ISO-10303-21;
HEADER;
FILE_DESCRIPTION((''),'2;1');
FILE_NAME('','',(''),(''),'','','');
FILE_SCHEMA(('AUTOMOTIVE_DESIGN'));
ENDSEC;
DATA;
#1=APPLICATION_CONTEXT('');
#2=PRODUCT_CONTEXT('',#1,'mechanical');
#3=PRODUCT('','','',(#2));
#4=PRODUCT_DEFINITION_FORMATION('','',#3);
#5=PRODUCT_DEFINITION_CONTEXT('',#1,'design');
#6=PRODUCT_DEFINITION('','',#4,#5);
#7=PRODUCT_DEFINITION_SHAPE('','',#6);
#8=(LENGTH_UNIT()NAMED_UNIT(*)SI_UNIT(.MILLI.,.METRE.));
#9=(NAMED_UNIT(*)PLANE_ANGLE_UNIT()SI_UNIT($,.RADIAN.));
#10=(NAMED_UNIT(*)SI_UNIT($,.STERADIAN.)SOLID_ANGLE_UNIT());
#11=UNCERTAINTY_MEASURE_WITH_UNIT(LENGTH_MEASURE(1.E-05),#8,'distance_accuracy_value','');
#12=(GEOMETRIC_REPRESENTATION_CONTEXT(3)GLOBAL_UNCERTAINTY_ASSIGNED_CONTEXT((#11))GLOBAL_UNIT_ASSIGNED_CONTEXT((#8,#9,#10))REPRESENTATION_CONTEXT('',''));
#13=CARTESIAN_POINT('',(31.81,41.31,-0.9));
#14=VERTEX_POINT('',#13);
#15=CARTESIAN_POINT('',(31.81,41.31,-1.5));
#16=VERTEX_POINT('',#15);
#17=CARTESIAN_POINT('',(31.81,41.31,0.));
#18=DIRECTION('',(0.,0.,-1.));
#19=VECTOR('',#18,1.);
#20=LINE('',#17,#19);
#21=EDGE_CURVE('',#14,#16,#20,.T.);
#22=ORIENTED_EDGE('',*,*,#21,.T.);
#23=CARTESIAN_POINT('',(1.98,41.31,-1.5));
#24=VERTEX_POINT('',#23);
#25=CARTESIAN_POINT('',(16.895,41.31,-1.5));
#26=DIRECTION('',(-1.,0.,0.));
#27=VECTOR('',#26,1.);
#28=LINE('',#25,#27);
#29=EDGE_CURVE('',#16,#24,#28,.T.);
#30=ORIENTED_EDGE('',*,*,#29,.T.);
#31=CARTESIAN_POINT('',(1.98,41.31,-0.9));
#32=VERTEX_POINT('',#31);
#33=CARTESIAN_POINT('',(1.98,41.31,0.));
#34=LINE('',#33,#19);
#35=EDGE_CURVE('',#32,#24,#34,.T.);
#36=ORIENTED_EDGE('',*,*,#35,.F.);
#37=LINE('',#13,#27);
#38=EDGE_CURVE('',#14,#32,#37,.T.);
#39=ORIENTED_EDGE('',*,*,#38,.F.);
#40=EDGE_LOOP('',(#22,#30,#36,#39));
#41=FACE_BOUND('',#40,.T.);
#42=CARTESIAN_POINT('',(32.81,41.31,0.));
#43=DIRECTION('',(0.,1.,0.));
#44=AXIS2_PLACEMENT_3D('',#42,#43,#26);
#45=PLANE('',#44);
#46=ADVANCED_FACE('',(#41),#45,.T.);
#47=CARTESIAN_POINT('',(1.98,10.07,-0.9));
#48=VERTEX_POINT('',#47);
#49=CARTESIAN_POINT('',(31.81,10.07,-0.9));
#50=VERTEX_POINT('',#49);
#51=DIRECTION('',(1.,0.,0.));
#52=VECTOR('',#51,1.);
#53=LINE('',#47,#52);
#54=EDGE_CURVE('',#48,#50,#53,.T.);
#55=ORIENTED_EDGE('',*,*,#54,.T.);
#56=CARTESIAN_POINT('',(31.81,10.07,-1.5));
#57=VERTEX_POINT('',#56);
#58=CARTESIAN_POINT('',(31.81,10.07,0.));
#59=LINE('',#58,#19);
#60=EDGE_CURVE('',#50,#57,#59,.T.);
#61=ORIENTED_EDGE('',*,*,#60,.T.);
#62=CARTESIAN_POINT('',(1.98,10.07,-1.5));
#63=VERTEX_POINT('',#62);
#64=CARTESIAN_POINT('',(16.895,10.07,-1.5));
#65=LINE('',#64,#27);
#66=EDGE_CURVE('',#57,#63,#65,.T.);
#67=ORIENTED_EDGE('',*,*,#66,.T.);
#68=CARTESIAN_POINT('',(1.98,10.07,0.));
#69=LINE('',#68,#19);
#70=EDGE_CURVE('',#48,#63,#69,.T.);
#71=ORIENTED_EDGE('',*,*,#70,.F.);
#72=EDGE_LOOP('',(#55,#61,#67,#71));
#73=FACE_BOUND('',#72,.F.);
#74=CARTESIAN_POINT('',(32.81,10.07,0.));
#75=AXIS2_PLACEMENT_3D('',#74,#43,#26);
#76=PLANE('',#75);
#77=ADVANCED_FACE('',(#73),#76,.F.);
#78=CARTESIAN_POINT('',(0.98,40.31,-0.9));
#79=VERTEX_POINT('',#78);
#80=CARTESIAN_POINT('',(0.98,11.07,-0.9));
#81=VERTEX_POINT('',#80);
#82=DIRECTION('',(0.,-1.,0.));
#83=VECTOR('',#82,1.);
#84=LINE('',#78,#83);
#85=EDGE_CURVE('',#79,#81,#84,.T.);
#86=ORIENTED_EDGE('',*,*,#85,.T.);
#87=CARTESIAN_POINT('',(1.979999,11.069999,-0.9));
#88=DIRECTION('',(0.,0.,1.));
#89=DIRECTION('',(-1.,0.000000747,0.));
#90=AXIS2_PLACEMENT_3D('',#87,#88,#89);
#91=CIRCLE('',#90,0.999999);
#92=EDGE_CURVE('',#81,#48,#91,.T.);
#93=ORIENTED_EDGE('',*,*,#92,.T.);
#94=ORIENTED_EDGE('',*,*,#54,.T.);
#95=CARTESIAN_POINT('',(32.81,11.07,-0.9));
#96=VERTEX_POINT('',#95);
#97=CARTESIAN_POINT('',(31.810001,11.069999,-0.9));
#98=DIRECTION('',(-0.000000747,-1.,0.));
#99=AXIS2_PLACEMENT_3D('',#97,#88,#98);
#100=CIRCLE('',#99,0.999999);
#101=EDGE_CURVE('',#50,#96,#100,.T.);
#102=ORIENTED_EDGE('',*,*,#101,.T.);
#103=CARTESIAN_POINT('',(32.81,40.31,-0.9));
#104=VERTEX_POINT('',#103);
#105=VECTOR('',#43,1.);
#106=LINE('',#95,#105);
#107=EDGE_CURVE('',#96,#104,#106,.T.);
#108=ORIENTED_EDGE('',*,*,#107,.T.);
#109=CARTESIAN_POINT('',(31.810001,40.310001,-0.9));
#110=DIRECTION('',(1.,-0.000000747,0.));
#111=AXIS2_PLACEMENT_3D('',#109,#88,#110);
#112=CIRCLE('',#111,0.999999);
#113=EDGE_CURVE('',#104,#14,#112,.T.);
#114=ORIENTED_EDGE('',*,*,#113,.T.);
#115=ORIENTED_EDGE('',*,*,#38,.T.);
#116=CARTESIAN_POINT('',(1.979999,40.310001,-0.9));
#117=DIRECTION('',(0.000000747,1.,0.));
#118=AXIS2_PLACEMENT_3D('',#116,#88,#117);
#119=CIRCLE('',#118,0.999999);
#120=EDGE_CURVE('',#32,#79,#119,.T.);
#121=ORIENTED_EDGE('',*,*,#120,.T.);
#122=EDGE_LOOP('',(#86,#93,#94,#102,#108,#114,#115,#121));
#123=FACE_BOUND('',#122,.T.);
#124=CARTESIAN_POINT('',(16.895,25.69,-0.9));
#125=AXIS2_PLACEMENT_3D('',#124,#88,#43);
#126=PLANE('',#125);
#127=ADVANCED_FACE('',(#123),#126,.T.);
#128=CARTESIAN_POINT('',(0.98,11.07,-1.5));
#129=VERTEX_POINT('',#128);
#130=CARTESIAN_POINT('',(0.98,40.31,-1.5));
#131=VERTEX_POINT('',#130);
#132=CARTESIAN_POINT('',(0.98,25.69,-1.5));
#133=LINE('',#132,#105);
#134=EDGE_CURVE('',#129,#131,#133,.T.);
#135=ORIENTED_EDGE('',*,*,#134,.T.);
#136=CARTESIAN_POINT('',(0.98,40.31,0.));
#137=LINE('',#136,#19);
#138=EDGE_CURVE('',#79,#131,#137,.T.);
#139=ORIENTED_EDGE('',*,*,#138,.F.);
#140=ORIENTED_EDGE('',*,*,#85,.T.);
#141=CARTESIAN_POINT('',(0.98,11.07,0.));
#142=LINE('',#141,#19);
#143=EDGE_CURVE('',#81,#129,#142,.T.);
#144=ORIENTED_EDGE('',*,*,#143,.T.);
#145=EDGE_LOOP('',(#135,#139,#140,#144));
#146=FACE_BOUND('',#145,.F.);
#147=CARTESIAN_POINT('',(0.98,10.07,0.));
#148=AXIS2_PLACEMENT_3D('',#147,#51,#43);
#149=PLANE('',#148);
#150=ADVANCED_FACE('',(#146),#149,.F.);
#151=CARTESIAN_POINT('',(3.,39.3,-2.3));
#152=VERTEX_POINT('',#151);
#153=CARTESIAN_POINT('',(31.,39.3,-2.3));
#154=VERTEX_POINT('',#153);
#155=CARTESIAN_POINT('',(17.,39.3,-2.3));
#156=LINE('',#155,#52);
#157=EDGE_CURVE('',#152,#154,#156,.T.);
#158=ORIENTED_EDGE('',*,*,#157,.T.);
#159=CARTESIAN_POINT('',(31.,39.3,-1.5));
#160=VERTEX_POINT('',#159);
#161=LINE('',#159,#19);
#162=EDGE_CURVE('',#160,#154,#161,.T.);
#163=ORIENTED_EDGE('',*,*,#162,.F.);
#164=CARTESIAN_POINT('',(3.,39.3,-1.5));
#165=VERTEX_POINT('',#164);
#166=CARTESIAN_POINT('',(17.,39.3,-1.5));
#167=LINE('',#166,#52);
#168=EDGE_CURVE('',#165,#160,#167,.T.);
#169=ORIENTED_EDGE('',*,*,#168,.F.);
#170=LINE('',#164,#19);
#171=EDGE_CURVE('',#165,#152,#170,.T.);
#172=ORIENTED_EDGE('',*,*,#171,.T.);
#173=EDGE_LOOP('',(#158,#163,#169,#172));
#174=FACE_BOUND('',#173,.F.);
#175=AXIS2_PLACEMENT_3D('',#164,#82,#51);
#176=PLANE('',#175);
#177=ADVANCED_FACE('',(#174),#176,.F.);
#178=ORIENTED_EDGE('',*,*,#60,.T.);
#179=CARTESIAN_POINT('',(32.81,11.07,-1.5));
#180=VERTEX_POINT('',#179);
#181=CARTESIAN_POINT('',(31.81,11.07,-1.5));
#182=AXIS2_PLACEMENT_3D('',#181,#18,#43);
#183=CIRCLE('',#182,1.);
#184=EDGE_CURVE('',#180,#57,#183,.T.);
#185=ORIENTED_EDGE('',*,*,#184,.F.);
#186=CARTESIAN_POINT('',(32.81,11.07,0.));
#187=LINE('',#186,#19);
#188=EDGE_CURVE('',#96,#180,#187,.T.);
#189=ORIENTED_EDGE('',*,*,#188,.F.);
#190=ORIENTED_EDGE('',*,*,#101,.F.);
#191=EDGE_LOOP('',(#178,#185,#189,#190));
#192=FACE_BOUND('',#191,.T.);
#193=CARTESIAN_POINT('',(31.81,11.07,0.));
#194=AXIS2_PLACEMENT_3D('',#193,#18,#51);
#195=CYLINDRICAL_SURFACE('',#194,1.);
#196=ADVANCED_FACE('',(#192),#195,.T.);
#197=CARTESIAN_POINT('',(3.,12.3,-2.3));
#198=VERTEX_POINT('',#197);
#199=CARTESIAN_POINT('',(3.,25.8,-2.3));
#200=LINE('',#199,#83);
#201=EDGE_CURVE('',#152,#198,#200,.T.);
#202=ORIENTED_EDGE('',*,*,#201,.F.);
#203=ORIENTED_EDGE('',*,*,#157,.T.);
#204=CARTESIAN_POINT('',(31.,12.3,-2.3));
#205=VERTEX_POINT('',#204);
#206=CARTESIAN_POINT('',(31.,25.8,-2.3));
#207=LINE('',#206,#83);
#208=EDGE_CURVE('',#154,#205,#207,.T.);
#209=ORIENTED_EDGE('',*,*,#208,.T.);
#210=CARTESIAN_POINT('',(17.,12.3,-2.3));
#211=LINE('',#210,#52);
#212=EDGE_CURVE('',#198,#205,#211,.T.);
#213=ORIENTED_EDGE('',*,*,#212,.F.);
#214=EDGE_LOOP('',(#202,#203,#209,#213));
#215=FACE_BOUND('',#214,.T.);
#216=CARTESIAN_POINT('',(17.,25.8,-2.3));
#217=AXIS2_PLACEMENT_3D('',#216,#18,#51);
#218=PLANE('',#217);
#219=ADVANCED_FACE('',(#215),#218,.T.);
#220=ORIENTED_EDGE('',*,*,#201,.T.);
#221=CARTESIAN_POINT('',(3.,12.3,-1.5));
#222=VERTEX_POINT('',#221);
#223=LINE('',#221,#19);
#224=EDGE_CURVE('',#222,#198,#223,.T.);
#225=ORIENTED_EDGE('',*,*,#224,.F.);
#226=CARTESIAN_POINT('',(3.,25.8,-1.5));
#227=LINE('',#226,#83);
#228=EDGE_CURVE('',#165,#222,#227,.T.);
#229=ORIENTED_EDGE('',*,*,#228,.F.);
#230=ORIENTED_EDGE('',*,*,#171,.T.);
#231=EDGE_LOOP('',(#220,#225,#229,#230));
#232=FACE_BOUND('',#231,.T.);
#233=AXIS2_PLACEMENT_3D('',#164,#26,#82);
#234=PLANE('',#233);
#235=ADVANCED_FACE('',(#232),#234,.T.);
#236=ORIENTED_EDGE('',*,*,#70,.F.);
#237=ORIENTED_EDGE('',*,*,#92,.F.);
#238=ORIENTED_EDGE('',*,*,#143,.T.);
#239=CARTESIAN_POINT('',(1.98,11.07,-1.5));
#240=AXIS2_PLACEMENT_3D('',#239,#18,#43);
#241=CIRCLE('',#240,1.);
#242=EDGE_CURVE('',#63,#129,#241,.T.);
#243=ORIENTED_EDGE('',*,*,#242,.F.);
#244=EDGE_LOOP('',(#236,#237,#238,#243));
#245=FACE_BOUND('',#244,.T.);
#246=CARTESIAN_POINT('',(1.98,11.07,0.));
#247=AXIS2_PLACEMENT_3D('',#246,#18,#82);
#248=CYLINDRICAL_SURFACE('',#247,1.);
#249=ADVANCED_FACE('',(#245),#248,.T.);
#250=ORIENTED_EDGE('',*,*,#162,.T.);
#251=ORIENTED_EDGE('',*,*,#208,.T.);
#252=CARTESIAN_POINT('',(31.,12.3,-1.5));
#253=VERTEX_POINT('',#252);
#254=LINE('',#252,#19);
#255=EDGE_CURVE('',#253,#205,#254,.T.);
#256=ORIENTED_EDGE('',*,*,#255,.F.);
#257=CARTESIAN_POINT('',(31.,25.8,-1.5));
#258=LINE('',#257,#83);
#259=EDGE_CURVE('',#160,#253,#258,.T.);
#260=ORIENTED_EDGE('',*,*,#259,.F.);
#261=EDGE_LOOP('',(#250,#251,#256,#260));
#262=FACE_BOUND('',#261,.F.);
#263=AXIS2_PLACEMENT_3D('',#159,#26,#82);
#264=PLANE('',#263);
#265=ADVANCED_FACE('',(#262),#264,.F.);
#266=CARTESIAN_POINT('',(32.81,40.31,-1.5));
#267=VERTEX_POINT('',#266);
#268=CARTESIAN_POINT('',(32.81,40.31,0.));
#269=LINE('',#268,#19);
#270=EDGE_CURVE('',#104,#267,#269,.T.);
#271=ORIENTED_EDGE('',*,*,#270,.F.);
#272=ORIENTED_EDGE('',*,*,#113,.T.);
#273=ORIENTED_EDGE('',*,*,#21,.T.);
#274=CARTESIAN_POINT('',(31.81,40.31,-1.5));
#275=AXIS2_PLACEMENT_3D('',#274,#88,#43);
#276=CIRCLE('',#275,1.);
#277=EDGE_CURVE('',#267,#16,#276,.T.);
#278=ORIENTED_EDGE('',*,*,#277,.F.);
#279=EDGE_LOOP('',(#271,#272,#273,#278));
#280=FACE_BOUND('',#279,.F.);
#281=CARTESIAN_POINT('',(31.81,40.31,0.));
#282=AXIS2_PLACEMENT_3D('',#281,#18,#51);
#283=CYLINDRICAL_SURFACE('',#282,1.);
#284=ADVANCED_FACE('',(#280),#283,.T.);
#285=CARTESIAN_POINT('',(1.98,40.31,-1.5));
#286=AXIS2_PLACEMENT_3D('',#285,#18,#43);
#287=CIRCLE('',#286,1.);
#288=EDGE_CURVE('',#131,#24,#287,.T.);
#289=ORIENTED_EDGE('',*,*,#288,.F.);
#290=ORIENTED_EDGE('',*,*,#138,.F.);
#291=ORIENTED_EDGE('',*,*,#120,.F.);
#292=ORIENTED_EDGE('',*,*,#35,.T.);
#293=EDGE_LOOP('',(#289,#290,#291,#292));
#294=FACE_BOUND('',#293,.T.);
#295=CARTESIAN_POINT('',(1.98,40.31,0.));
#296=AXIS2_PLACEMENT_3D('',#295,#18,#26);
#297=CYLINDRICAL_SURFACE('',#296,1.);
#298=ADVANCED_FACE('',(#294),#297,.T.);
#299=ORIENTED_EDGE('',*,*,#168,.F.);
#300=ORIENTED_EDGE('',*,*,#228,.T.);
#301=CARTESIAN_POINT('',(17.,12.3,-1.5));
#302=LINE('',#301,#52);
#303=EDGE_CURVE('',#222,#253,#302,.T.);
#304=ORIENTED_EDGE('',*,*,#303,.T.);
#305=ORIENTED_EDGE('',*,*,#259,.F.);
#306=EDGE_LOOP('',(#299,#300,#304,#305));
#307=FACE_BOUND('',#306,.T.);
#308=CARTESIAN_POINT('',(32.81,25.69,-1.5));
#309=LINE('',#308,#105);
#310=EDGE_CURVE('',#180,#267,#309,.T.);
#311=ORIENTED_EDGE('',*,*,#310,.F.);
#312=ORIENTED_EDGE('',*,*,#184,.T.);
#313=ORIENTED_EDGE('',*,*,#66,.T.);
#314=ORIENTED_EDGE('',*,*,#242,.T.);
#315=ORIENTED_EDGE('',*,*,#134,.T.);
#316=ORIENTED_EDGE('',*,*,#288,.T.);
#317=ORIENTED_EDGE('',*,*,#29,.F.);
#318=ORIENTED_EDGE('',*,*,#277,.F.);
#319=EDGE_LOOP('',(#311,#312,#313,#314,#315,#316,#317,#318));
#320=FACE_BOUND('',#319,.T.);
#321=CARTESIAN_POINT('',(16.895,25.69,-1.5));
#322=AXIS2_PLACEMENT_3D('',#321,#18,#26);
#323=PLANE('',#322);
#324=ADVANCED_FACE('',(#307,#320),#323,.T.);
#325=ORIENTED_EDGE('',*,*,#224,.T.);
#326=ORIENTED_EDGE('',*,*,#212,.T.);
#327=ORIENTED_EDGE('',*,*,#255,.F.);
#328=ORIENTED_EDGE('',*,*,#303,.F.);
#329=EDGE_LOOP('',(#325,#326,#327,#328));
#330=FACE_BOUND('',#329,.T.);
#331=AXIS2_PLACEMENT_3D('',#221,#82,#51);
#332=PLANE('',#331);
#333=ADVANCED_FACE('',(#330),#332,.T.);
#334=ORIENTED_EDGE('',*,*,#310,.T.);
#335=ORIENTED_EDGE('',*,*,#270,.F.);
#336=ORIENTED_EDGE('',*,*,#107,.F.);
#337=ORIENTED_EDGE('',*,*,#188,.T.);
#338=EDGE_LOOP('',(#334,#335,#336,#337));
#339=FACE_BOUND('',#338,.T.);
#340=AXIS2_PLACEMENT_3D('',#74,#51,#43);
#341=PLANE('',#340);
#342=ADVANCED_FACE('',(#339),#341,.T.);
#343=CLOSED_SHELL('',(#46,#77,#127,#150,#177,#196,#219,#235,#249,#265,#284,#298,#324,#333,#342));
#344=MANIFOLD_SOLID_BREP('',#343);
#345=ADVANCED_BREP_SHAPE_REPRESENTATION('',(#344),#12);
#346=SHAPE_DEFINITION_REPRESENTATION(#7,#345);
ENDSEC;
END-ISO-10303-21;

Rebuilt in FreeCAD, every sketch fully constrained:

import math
import FreeCAD as App
import Part
import Sketcher

V = App.Vector
Q = App.Units.Quantity


def edges_at(feature, points):
    """Names of the edges that pass closest to the given points."""
    edges = feature.Shape.Edges
    near = lambda p: min(range(len(edges)), key=lambda i: edges[i].distToShape(Part.Vertex(*p))[0])
    return sorted({f"Edge{near(p) + 1}" for p in points})

doc = App.newDocument("Part")
body = doc.addObject("PartDesign::Body", "Body")

sketch1 = doc.addObject("Sketcher::SketchObject", "Sketch")
body.addObject(sketch1)
sketch1.AttachmentSupport = (doc.XY_Plane, [""])
sketch1.MapMode = "FlatFace"
sketch1.addGeometry([
    Part.LineSegment(V(33, 41, 0), V(33, 10, 0)),
    Part.LineSegment(V(33, 10, 0), V(1, 10, 0)),
    Part.LineSegment(V(1, 10, 0), V(1, 41, 0)),
    Part.LineSegment(V(1, 41, 0), V(33, 41, 0)),
], False)
sketch1.addConstraint([
    Sketcher.Constraint("Coincident", 0, 2, 1, 1),
    Sketcher.Constraint("Coincident", 1, 2, 2, 1),
    Sketcher.Constraint("Coincident", 2, 2, 3, 1),
    Sketcher.Constraint("Coincident", 3, 2, 0, 1),
    Sketcher.Constraint("Vertical", 0),
    Sketcher.Constraint("Horizontal", 1),
    Sketcher.Constraint("Vertical", 2),
    Sketcher.Constraint("Horizontal", 3),
    Sketcher.Constraint("DistanceX", 1, 2, 1, 1, Q("31.83 mm")),
    Sketcher.Constraint("DistanceY", 0, 2, 0, 1, Q("31.24 mm")),
    Sketcher.Constraint("DistanceX", -1, 1, 0, 2, Q("32.81 mm")),
    Sketcher.Constraint("DistanceY", -1, 1, 0, 2, Q("10.07 mm")),
])
pad1 = doc.addObject("PartDesign::Pad", "Pad")
body.addObject(pad1)
pad1.Profile = sketch1
pad1.Length = 1.5
pad1.Reversed = True
doc.recompute()

fillet = doc.addObject("PartDesign::Fillet", "Fillet")
body.addObject(fillet)
fillet.Base = (pad1, edges_at(pad1, [
    (32.81, 41.31, -0.75),
    (0.98, 41.31, -0.75),
    (0.98, 10.07, -0.75),
    (32.81, 10.07, -0.75),
]))
fillet.Radius = 1

sketch2 = doc.addObject("Sketcher::SketchObject", "Sketch001")
body.addObject(sketch2)
sketch2.AttachmentSupport = (doc.XY_Plane, [""])
sketch2.MapMode = "FlatFace"
sketch2.addGeometry([
    Part.LineSegment(V(31.8, 41.3, 0), V(2, 41.3, 0)),
    Part.ArcOfCircle(Part.Circle(V(2, 40.3, 0), V(0, 0, 1), 1), math.radians(90), math.radians(180)),
    Part.LineSegment(V(1, 40.3, 0), V(1, 11.1, 0)),
    Part.ArcOfCircle(Part.Circle(V(2, 11.1, 0), V(0, 0, 1), 1), math.radians(180), math.radians(270)),
    Part.LineSegment(V(2, 10.1, 0), V(31.8, 10.1, 0)),
    Part.ArcOfCircle(Part.Circle(V(31.8, 11.1, 0), V(0, 0, 1), 1), math.radians(-90), math.radians(0)),
    Part.LineSegment(V(32.8, 11.1, 0), V(32.8, 40.3, 0)),
    Part.ArcOfCircle(Part.Circle(V(31.8, 40.3, 0), V(0, 0, 1), 1), math.radians(0), math.radians(90)),
], False)
sketch2.addConstraint([
    Sketcher.Constraint("Tangent", 0, 2, 1, 1),
    Sketcher.Constraint("Tangent", 1, 2, 2, 1),
    Sketcher.Constraint("Tangent", 2, 2, 3, 1),
    Sketcher.Constraint("Tangent", 3, 2, 4, 1),
    Sketcher.Constraint("Tangent", 4, 2, 5, 1),
    Sketcher.Constraint("Tangent", 5, 2, 6, 1),
    Sketcher.Constraint("Tangent", 6, 2, 7, 1),
    Sketcher.Constraint("Tangent", 7, 2, 0, 1),
    Sketcher.Constraint("Horizontal", 0),
    Sketcher.Constraint("Vertical", 2),
    Sketcher.Constraint("Horizontal", 4),
    Sketcher.Constraint("Vertical", 6),
    Sketcher.Constraint("Equal", 1, 3),
    Sketcher.Constraint("Equal", 3, 5),
    Sketcher.Constraint("Equal", 5, 7),
    Sketcher.Constraint("Radius", 1, Q("0.999999 mm")),
    Sketcher.Constraint("DistanceX", 0, 2, 0, 1, Q("29.83 mm")),
    Sketcher.Constraint("DistanceY", 2, 2, 2, 1, Q("29.24 mm")),
    Sketcher.Constraint("DistanceX", -1, 1, 1, 3, Q("1.979999 mm")),
    Sketcher.Constraint("DistanceY", -1, 1, 1, 3, Q("40.310001 mm")),
])
pocket1 = doc.addObject("PartDesign::Pocket", "Pocket")
body.addObject(pocket1)
pocket1.Profile = sketch2
pocket1.Length = 0.9

sketch3 = doc.addObject("Sketcher::SketchObject", "Sketch002")
body.addObject(sketch3)
sketch3.AttachmentSupport = (doc.XY_Plane, [""])
sketch3.MapMode = "FlatFace"
sketch3.AttachmentOffset = App.Placement(V(0, 0, -1.5), App.Rotation())
sketch3.addGeometry([
    Part.LineSegment(V(3, 12, 0), V(3, 39, 0)),
    Part.LineSegment(V(3, 39, 0), V(31, 39, 0)),
    Part.LineSegment(V(31, 39, 0), V(31, 12, 0)),
    Part.LineSegment(V(31, 12, 0), V(3, 12, 0)),
], False)
sketch3.addConstraint([
    Sketcher.Constraint("Coincident", 0, 2, 1, 1),
    Sketcher.Constraint("Coincident", 1, 2, 2, 1),
    Sketcher.Constraint("Coincident", 2, 2, 3, 1),
    Sketcher.Constraint("Coincident", 3, 2, 0, 1),
    Sketcher.Constraint("Vertical", 0),
    Sketcher.Constraint("Horizontal", 1),
    Sketcher.Constraint("Vertical", 2),
    Sketcher.Constraint("Horizontal", 3),
    Sketcher.Constraint("DistanceX", 1, 1, 1, 2, Q("28 mm")),
    Sketcher.Constraint("DistanceY", 0, 1, 0, 2, Q("27 mm")),
    Sketcher.Constraint("DistanceX", -1, 1, 0, 2, Q("3 mm")),
    Sketcher.Constraint("DistanceY", -1, 1, 0, 2, Q("39.3 mm")),
])
pad2 = doc.addObject("PartDesign::Pad", "Pad001")
body.addObject(pad2)
pad2.Profile = sketch3
pad2.Length = 0.8
pad2.Reversed = True

doc.recompute()
